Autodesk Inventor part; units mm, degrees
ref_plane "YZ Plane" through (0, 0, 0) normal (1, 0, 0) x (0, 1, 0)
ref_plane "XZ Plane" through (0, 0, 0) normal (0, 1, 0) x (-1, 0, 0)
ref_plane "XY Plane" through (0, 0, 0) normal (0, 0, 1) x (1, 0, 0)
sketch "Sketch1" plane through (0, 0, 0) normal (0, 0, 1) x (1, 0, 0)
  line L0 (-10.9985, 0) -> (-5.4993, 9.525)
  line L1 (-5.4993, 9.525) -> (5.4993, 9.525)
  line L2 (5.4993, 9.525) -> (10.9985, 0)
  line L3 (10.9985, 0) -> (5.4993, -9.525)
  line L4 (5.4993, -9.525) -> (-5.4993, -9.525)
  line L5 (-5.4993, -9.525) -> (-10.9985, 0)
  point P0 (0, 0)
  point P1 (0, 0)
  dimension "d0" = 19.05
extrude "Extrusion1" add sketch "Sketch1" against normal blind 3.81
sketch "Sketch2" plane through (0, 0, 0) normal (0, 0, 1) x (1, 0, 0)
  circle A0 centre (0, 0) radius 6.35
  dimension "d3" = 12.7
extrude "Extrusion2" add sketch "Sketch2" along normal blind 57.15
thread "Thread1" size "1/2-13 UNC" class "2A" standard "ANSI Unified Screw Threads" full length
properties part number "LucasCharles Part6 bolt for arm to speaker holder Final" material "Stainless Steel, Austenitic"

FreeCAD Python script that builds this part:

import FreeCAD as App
import Part
import Sketcher
Q = App.Units.Quantity


def add_polygon(sketch, points):
    """Adds a closed chain of lines whose ends are joined by coincident constraints."""
    first, n = sketch.GeometryCount, len(points)
    for a, b in zip(points, points[1:] + points[:1]):
        sketch.addGeometry(Part.LineSegment(App.Vector(*a, 0), App.Vector(*b, 0)), False)
    for i in range(n):
        sketch.addConstraint(Sketcher.Constraint("Coincident", first + i, 2, first + (i + 1) % n, 1))

doc = App.newDocument("Part")
body = doc.addObject("PartDesign::Body", "Body")

# Sketch on XY plane
sketch1 = body.newObject("Sketcher::SketchObject", "Sketch")
sketch1.AttachmentSupport = (doc.getObject("XY_Plane"), [""])
sketch1.MapMode = "FlatFace"
add_polygon(sketch1, [(-5, 10), (-11, 0), (-5, -10), (5, -10), (11, 0), (5, 10)])  # lines 0-5
sketch1.addConstraint(Sketcher.Constraint("Horizontal", 2))
sketch1.addConstraint(Sketcher.Constraint("Horizontal", 5))
sketch1.addConstraint(Sketcher.Constraint("Symmetric", 0, 2, 3, 2, -1, 1))
sketch1.addConstraint(Sketcher.Constraint("Symmetric", 1, 2, 4, 2, -1, 1))
sketch1.addConstraint(Sketcher.Constraint("PointOnObject", 0, 2, -1))
sketch1.addConstraint(Sketcher.Constraint("Parallel", 0, 3))
sketch1.addConstraint(Sketcher.Constraint("Vertical", 2, 2, 4, 2))
sketch1.addConstraint(Sketcher.Constraint("DistanceY", 2, 2, 4, 2, Q("0.75 in")))
sketch1.addConstraint(Sketcher.Constraint("Angle", 0, Q("-119.9997 deg")))
sketch1.addConstraint(Sketcher.Constraint("DistanceX", 0, 2, -1, 1, Q("0.433 in")))
pad1 = body.newObject("PartDesign::Pad", "Pad")
pad1.Profile = sketch1
pad1.Length = Q("0.15 in")
pad1.Reversed = True

# Sketch on XY plane
sketch2 = body.newObject("Sketcher::SketchObject", "Sketch001")
sketch2.AttachmentSupport = (doc.getObject("XY_Plane"), [""])
sketch2.MapMode = "FlatFace"
sketch2.addGeometry(Part.Circle(App.Vector(0, 0, 0), App.Vector(0, 0, 1), 6), False)
sketch2.addConstraint(Sketcher.Constraint("Coincident", 0, 3, -1, 1))
sketch2.addConstraint(Sketcher.Constraint("Diameter", 0, Q("0.5 in")))
pad2 = body.newObject("PartDesign::Pad", "Pad001")
pad2.Profile = sketch2
pad2.Length = Q("2.25 in")

doc.recompute()
